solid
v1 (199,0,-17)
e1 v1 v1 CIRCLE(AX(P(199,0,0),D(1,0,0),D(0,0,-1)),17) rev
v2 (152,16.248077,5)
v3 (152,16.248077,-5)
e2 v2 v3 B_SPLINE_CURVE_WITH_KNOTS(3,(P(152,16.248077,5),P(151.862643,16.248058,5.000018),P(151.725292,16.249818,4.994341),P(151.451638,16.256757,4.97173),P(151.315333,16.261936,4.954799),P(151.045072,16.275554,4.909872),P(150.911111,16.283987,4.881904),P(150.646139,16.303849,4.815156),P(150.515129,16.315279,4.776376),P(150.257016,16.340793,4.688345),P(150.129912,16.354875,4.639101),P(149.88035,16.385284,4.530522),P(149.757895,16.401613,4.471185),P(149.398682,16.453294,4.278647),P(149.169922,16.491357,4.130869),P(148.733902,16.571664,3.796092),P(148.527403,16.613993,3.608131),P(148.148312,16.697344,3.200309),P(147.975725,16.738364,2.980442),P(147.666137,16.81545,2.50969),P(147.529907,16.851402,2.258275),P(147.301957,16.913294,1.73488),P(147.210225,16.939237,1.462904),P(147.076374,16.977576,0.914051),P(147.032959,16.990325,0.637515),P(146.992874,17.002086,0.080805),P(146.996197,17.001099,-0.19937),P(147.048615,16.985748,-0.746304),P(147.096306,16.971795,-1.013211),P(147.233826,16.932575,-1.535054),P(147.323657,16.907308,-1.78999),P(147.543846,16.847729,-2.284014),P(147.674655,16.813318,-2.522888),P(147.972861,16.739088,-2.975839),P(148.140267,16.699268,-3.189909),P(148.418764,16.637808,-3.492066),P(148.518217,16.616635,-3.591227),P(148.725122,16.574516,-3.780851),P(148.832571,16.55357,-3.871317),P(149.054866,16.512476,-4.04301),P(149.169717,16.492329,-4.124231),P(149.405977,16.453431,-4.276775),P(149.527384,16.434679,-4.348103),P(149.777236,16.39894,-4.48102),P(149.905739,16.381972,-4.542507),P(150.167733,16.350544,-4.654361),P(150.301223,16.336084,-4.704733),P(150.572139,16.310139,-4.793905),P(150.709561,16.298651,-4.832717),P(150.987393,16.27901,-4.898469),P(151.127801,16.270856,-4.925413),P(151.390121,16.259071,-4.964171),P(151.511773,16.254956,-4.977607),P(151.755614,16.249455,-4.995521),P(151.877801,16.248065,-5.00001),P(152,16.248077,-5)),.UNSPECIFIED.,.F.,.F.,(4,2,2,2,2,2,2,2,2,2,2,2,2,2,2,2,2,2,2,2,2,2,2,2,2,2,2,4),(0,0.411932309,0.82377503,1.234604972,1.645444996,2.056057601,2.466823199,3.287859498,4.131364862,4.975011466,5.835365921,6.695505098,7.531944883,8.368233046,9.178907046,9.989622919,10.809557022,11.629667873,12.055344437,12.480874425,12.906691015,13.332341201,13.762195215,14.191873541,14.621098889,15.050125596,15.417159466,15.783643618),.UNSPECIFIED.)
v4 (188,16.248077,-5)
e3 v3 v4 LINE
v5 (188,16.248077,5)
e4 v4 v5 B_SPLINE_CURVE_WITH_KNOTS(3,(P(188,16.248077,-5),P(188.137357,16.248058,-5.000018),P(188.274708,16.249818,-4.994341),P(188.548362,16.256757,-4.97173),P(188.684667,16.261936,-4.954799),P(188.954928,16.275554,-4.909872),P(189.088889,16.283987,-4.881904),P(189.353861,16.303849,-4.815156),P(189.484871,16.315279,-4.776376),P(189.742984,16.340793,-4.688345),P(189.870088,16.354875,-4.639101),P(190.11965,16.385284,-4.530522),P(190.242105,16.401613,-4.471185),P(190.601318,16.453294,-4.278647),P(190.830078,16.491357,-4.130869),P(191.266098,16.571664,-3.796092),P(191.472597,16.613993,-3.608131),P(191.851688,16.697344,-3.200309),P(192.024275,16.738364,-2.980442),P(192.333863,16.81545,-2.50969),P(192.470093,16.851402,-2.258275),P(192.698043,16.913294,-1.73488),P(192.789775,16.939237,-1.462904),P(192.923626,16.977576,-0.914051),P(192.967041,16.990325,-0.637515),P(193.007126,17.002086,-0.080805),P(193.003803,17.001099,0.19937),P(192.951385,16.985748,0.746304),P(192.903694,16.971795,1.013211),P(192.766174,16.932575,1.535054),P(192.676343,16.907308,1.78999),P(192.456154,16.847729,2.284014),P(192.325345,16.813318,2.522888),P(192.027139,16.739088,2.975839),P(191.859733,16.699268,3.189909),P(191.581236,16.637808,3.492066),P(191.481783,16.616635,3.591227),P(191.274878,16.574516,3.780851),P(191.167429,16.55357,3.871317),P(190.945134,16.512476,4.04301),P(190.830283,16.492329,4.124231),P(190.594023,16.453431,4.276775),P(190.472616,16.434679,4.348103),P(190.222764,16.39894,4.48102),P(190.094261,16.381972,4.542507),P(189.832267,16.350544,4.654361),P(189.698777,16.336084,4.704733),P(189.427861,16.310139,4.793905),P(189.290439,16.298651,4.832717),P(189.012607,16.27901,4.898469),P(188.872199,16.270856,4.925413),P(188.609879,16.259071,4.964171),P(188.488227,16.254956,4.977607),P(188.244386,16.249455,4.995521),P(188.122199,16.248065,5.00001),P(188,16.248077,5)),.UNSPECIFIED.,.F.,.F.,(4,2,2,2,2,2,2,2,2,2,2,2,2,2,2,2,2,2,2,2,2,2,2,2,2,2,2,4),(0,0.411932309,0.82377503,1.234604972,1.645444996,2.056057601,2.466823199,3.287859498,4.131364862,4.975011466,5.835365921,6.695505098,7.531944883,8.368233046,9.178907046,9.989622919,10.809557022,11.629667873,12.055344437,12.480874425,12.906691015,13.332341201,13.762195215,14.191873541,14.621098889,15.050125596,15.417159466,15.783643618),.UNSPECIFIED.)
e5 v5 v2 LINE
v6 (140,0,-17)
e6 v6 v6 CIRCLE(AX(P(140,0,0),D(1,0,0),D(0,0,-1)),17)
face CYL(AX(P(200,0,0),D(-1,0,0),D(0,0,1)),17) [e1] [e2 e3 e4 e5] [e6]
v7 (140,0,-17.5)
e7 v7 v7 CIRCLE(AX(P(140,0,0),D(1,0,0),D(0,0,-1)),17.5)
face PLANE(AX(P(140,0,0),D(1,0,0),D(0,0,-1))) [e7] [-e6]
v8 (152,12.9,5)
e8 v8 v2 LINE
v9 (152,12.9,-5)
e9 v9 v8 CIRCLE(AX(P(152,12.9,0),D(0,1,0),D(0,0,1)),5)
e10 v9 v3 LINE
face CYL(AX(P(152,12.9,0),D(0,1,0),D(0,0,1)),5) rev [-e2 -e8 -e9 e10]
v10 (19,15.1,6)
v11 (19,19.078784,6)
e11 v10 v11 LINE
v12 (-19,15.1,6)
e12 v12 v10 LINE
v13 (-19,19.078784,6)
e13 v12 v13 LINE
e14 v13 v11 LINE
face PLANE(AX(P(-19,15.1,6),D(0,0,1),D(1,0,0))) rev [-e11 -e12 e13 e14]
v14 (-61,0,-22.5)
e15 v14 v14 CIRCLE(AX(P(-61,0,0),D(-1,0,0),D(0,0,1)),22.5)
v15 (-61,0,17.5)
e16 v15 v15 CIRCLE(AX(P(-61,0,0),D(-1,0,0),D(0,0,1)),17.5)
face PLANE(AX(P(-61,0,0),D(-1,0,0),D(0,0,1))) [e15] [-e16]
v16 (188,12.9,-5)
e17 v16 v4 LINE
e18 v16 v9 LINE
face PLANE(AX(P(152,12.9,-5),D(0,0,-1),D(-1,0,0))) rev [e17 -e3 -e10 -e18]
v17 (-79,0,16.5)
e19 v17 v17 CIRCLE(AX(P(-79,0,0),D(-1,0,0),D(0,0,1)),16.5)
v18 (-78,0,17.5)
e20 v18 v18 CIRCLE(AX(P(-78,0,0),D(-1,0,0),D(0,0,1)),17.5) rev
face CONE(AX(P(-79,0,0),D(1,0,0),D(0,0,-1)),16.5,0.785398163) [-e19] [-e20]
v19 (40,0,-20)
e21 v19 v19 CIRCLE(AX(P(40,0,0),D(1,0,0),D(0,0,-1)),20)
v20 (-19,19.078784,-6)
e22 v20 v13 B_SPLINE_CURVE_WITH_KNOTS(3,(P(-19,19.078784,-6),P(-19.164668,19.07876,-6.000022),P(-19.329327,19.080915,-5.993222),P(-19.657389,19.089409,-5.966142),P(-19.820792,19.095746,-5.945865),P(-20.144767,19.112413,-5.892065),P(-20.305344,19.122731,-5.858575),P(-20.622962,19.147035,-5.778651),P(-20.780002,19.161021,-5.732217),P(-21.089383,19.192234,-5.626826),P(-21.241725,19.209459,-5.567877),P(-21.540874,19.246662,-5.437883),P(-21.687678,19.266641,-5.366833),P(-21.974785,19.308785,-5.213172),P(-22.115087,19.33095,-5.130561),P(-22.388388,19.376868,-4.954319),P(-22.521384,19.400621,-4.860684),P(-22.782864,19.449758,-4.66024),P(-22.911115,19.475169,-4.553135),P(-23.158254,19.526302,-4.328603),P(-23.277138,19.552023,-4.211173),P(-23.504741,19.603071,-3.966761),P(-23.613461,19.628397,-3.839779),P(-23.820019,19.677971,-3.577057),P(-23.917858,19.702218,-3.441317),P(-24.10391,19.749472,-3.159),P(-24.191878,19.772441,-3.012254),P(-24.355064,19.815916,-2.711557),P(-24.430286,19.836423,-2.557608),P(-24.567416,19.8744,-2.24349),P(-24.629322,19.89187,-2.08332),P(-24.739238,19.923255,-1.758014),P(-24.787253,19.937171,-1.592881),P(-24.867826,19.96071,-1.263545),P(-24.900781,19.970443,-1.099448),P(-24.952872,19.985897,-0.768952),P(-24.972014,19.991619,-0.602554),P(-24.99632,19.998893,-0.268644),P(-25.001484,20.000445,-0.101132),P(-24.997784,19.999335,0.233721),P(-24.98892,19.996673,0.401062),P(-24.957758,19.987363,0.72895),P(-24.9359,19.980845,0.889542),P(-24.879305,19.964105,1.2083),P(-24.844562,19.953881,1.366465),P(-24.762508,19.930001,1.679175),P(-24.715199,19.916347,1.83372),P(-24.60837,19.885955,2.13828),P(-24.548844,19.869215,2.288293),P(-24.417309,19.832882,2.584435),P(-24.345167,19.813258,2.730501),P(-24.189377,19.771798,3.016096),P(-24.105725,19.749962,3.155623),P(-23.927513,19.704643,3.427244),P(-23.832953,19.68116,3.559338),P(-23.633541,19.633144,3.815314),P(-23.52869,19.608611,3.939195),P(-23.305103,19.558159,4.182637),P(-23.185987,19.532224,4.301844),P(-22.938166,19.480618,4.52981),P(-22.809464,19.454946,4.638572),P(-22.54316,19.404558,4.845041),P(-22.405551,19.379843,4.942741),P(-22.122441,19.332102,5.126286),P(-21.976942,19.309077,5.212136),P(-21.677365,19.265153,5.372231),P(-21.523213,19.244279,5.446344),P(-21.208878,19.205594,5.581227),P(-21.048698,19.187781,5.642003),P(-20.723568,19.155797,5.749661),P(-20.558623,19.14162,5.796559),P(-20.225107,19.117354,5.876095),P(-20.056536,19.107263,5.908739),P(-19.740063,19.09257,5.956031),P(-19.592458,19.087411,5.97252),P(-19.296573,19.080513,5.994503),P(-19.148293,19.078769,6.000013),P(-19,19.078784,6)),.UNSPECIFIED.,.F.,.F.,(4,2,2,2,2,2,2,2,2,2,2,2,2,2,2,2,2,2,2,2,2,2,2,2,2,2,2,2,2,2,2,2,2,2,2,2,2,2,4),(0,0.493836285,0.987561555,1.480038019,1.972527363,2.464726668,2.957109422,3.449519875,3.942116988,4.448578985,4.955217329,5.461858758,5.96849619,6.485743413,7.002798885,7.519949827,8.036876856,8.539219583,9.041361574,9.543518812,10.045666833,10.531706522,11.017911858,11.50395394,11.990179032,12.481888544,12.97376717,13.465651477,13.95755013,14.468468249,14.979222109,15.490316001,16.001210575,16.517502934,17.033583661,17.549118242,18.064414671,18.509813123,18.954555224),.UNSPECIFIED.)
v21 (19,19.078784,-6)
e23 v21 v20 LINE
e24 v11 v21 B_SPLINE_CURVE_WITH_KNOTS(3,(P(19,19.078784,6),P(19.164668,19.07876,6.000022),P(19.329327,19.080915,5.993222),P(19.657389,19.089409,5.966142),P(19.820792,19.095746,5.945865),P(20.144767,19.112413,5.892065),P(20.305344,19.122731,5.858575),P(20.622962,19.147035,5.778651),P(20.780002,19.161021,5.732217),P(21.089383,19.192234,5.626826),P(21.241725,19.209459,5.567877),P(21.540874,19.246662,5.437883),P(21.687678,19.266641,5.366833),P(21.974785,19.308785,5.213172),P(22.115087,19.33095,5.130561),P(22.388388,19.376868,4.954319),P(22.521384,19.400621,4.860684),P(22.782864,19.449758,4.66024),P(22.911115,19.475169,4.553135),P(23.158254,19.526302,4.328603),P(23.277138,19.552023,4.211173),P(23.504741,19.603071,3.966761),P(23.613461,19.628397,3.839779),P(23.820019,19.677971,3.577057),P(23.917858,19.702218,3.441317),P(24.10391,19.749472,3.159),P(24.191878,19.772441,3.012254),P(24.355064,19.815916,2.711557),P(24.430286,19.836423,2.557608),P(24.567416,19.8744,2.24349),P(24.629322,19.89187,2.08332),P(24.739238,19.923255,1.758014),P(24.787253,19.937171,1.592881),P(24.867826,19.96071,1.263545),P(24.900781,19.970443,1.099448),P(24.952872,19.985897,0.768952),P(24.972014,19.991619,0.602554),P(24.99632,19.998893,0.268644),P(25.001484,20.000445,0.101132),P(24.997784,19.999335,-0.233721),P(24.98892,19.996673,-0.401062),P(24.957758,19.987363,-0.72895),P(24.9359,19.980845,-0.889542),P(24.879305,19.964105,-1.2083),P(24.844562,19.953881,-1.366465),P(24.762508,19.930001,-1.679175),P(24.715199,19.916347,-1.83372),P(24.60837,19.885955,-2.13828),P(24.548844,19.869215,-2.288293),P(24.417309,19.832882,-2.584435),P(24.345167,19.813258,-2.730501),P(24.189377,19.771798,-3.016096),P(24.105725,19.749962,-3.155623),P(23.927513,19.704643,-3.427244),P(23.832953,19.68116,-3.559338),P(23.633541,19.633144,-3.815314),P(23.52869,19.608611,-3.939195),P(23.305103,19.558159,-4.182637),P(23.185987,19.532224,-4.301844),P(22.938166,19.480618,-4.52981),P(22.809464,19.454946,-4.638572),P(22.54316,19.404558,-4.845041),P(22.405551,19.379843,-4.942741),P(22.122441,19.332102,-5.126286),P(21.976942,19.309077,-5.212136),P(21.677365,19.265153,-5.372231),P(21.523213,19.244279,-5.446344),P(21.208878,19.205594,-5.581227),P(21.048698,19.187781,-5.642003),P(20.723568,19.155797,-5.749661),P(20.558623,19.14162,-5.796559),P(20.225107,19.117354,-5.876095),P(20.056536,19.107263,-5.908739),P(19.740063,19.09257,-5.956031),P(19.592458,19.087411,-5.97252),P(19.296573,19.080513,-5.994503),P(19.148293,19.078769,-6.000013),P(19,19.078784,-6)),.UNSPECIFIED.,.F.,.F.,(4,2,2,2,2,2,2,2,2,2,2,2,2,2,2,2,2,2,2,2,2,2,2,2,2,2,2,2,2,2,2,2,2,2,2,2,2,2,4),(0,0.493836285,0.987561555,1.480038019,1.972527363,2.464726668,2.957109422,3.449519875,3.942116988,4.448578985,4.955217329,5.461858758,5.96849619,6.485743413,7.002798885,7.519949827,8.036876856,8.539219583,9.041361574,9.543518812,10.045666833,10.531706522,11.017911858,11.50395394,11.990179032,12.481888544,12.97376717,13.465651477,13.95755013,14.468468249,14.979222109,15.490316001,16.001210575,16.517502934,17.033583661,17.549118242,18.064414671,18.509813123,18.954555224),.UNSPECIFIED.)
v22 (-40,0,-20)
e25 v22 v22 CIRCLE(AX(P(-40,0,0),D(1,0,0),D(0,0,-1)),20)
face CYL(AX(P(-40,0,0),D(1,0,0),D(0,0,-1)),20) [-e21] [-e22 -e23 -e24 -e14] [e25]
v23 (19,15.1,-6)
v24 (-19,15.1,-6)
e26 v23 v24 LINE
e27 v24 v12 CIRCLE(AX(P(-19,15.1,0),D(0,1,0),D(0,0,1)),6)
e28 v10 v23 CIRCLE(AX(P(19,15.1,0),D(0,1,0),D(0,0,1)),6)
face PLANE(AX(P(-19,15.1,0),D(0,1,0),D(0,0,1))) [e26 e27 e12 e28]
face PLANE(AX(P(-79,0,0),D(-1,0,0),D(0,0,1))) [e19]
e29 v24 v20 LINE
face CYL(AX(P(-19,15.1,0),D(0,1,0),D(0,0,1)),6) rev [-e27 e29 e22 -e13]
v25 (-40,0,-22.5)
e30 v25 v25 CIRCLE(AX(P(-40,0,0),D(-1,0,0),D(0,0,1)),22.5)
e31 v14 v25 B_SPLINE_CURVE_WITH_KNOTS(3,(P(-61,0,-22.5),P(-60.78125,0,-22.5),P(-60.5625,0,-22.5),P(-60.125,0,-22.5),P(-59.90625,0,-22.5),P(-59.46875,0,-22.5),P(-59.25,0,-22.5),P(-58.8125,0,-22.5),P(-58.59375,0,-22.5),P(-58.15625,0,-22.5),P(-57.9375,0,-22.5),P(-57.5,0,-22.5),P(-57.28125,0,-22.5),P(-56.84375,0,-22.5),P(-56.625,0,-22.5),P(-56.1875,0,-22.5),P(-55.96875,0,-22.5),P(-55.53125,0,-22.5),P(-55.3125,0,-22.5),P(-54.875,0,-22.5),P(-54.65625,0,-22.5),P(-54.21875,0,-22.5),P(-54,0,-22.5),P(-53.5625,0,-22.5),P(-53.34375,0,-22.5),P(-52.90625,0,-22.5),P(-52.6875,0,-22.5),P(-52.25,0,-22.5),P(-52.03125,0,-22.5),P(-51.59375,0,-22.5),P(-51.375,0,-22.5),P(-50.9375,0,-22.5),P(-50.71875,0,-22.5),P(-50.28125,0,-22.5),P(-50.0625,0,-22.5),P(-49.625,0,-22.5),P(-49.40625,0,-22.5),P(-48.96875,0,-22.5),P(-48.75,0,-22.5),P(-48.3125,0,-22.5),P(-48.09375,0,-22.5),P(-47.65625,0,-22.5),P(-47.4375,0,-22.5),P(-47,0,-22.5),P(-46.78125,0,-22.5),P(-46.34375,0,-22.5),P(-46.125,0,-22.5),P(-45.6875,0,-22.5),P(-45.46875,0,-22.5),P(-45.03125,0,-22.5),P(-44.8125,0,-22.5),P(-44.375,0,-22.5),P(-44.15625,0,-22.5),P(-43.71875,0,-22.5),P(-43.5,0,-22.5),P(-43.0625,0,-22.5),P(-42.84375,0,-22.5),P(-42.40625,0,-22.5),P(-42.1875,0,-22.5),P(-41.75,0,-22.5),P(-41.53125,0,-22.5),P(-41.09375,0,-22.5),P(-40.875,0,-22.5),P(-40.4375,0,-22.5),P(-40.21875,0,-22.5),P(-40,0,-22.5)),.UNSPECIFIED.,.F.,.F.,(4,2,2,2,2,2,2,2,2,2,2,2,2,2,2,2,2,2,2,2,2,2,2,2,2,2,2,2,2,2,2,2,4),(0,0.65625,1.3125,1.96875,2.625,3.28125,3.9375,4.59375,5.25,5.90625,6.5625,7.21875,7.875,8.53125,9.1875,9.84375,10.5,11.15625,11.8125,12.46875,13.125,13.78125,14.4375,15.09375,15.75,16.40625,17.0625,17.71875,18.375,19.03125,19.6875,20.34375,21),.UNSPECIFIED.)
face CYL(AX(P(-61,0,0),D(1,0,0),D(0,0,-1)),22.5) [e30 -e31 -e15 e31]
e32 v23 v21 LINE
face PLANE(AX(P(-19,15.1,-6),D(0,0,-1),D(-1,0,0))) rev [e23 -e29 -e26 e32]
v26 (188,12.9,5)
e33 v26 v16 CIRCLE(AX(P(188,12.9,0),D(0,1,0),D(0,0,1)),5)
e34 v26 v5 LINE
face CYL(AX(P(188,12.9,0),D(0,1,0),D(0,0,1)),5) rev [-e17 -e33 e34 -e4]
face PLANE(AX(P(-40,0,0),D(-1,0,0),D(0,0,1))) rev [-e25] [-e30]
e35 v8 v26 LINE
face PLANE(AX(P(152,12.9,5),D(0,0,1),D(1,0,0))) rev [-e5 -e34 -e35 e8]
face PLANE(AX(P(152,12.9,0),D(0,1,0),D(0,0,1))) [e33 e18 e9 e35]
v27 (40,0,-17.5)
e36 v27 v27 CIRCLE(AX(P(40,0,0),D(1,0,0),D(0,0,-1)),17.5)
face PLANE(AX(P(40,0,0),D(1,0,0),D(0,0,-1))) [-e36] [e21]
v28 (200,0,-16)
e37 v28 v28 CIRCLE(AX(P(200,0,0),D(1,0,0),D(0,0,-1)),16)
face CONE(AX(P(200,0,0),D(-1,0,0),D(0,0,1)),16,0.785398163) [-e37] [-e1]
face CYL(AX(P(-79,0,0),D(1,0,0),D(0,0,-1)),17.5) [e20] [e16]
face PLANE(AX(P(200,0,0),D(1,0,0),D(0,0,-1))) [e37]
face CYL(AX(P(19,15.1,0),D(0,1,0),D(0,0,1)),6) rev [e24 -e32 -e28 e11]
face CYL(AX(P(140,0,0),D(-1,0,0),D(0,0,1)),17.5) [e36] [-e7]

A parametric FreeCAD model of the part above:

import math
import FreeCAD as App
import Part
import Sketcher

V = App.Vector


def edges_at(feature, points):
    """Names of the edges that pass closest to the given points."""
    edges = feature.Shape.Edges
    near = lambda p: min(range(len(edges)), key=lambda i: edges[i].distToShape(Part.Vertex(*p))[0])
    return sorted({f"Edge{near(p) + 1}" for p in points})

doc = App.newDocument("Part")
params = doc.addObject("Spreadsheet::Sheet", "Params")
for row, (alias, value) in enumerate([
    ("sketch1_diameter", "40 mm"),
    ("pad1_length", "40 mm"),
    ("pad1_length2", "40 mm"),
    ("sketch2_radius", "6 mm"),
    ("sketch2_width", "38 mm"),
    ("pocket1_length", "4.9 mm"),
    ("sketch3_diameter", "45 mm"),
    ("pad2_length", "21 mm"),
    ("sketch4_diameter", "35 mm"),
    ("pad3_length", "18 mm"),
    ("chamfer_size", "1 mm"),
    ("sketch5_diameter", "35 mm"),
    ("pad4_length", "100 mm"),
    ("sketch6_diameter", "34 mm"),
    ("pad5_length", "60 mm"),
    ("sketch7_radius", "5 mm"),
    ("sketch7_width", "36 mm"),
    ("pocket2_length", "4.1 mm"),
    ("chamfer2_size", "1 mm"),
], start=1):
    params.set(f"A{row}", alias)
    params.set(f"B{row}", "=" + value)
    params.setAlias(f"B{row}", alias)

body = doc.addObject("PartDesign::Body", "Body")

# Sketch on YZ plane
sketch1 = doc.addObject("Sketcher::SketchObject", "Sketch")
body.addObject(sketch1)
sketch1.AttachmentSupport = (doc.YZ_Plane, [""])
sketch1.MapMode = "FlatFace"
sketch1.addGeometry(Part.Circle(V(0, 0, 0), V(0, 0, 1), 20), False)
sketch1.addConstraint([
    Sketcher.Constraint("Coincident", 0, 3, -1, 1),
    Sketcher.Constraint("Diameter", 0, 40.0),
])
sketch1.setExpression("Constraints[1]", "Params.sketch1_diameter")
pad1 = doc.addObject("PartDesign::Pad", "Pad")
body.addObject(pad1)
pad1.Profile = sketch1
pad1.Type = "TwoLengths"
pad1.setExpression("Length", "Params.pad1_length")
pad1.setExpression("Length2", "Params.pad1_length2")

# Sketch on XZ plane
sketch2 = doc.addObject("Sketcher::SketchObject", "Sketch001")
body.addObject(sketch2)
sketch2.AttachmentSupport = (doc.XZ_Plane, [""])
sketch2.MapMode = "FlatFace"
sketch2.AttachmentOffset = App.Placement(V(0, 0, -20), App.Rotation())
sketch2.addGeometry([
    Part.LineSegment(V(19, -6, 0), V(-19, -6, 0)),
    Part.ArcOfCircle(Part.Circle(V(-19, 0, 0), V(0, 0, 1), 6), math.radians(90), math.radians(270)),
    Part.LineSegment(V(-19, 6, 0), V(19, 6, 0)),
    Part.ArcOfCircle(Part.Circle(V(19, 0, 0), V(0, 0, 1), 6), math.radians(-90), math.radians(90)),
], False)
sketch2.addConstraint([
    Sketcher.Constraint("Tangent", 0, 2, 1, 2),
    Sketcher.Constraint("Tangent", 1, 1, 2, 1),
    Sketcher.Constraint("Tangent", 2, 2, 3, 2),
    Sketcher.Constraint("Tangent", 3, 1, 0, 1),
    Sketcher.Constraint("Horizontal", 0),
    Sketcher.Constraint("Horizontal", 2),
    Sketcher.Constraint("Symmetric", 1, 3, 3, 3, -1, 1),
    Sketcher.Constraint("Radius", 1, 6.0),
    Sketcher.Constraint("DistanceX", 0, 2, 0, 1, 38.0),
])
sketch2.setExpression("Constraints[7]", "Params.sketch2_radius")
sketch2.setExpression("Constraints[8]", "Params.sketch2_width")
pocket1 = doc.addObject("PartDesign::Pocket", "Pocket")
body.addObject(pocket1)
pocket1.Profile = sketch2
pocket1.setExpression("Length", "Params.pocket1_length")
pocket1.Reversed = True

# Sketch on YZ plane
sketch3 = doc.addObject("Sketcher::SketchObject", "Sketch002")
body.addObject(sketch3)
sketch3.AttachmentSupport = (doc.YZ_Plane, [""])
sketch3.MapMode = "FlatFace"
sketch3.AttachmentOffset = App.Placement(V(0, 0, -40), App.Rotation())
sketch3.addGeometry(Part.Circle(V(0, 0, 0), V(0, 0, 1), 22.5), False)
sketch3.addConstraint([
    Sketcher.Constraint("Coincident", 0, 3, -1, 1),
    Sketcher.Constraint("Diameter", 0, 45.0),
])
sketch3.setExpression("Constraints[1]", "Params.sketch3_diameter")
pad2 = doc.addObject("PartDesign::Pad", "Pad001")
body.addObject(pad2)
pad2.Profile = sketch3
pad2.setExpression("Length", "Params.pad2_length")
pad2.Reversed = True

# Sketch on YZ plane
sketch4 = doc.addObject("Sketcher::SketchObject", "Sketch003")
body.addObject(sketch4)
sketch4.AttachmentSupport = (doc.YZ_Plane, [""])
sketch4.MapMode = "FlatFace"
sketch4.AttachmentOffset = App.Placement(V(0, 0, -61), App.Rotation())
sketch4.addGeometry(Part.Circle(V(0, 0, 0), V(0, 0, 1), 17.5), False)
sketch4.addConstraint([
    Sketcher.Constraint("Coincident", 0, 3, -1, 1),
    Sketcher.Constraint("Diameter", 0, 35.0),
])
sketch4.setExpression("Constraints[1]", "Params.sketch4_diameter")
pad3 = doc.addObject("PartDesign::Pad", "Pad002")
body.addObject(pad3)
pad3.Profile = sketch4
pad3.setExpression("Length", "Params.pad3_length")
pad3.Reversed = True
doc.recompute()

chamfer = doc.addObject("PartDesign::Chamfer", "Chamfer")
body.addObject(chamfer)
chamfer.Base = (pad3, edges_at(pad3, [(-79, 0, -17.5)]))
chamfer.setExpression("Size", "Params.chamfer_size")

# Sketch on YZ plane
sketch5 = doc.addObject("Sketcher::SketchObject", "Sketch004")
body.addObject(sketch5)
sketch5.AttachmentSupport = (doc.YZ_Plane, [""])
sketch5.MapMode = "FlatFace"
sketch5.AttachmentOffset = App.Placement(V(0, 0, 140), App.Rotation())
sketch5.addGeometry(Part.Circle(V(0, 0, 0), V(0, 0, 1), 17.5), False)
sketch5.addConstraint([
    Sketcher.Constraint("Coincident", 0, 3, -1, 1),
    Sketcher.Constraint("Diameter", 0, 35.0),
])
sketch5.setExpression("Constraints[1]", "Params.sketch5_diameter")
pad4 = doc.addObject("PartDesign::Pad", "Pad003")
body.addObject(pad4)
pad4.Profile = sketch5
pad4.setExpression("Length", "Params.pad4_length")
pad4.Reversed = True

# Sketch on YZ plane
sketch6 = doc.addObject("Sketcher::SketchObject", "Sketch005")
body.addObject(sketch6)
sketch6.AttachmentSupport = (doc.YZ_Plane, [""])
sketch6.MapMode = "FlatFace"
sketch6.AttachmentOffset = App.Placement(V(0, 0, 140), App.Rotation())
sketch6.addGeometry(Part.Circle(V(0, 0, 0), V(0, 0, 1), 17), False)
sketch6.addConstraint([
    Sketcher.Constraint("Coincident", 0, 3, -1, 1),
    Sketcher.Constraint("Diameter", 0, 34.0),
])
sketch6.setExpression("Constraints[1]", "Params.sketch6_diameter")
pad5 = doc.addObject("PartDesign::Pad", "Pad004")
body.addObject(pad5)
pad5.Profile = sketch6
pad5.setExpression("Length", "Params.pad5_length")

# Sketch on XZ plane
sketch7 = doc.addObject("Sketcher::SketchObject", "Sketch006")
body.addObject(sketch7)
sketch7.AttachmentSupport = (doc.XZ_Plane, [""])
sketch7.MapMode = "FlatFace"
sketch7.AttachmentOffset = App.Placement(V(0, 0, -17), App.Rotation())
sketch7.addGeometry([
    Part.LineSegment(V(188, -5, 0), V(152, -5, 0)),
    Part.ArcOfCircle(Part.Circle(V(152, 0, 0), V(0, 0, 1), 5), math.radians(90), math.radians(270)),
    Part.LineSegment(V(152, 5, 0), V(188, 5, 0)),
    Part.ArcOfCircle(Part.Circle(V(188, 0, 0), V(0, 0, 1), 5), math.radians(-90), math.radians(90)),
], False)
sketch7.addConstraint([
    Sketcher.Constraint("Tangent", 0, 2, 1, 2),
    Sketcher.Constraint("Tangent", 1, 1, 2, 1),
    Sketcher.Constraint("Tangent", 2, 2, 3, 2),
    Sketcher.Constraint("Tangent", 3, 1, 0, 1),
    Sketcher.Constraint("Horizontal", 0),
    Sketcher.Constraint("Horizontal", 2),
    Sketcher.Constraint("PointOnObject", 1, 3, -1),
    Sketcher.Constraint("Radius", 1, 5.0),
    Sketcher.Constraint("DistanceX", 0, 2, 0, 1, 36.0),
    Sketcher.Constraint("DistanceX", -1, 1, 1, 3, 152.0),
])
sketch7.setExpression("Constraints[7]", "Params.sketch7_radius")
sketch7.setExpression("Constraints[8]", "Params.sketch7_width")
pocket2 = doc.addObject("PartDesign::Pocket", "Pocket001")
body.addObject(pocket2)
pocket2.Profile = sketch7
pocket2.setExpression("Length", "Params.pocket2_length")
pocket2.Reversed = True
doc.recompute()

chamfer2 = doc.addObject("PartDesign::Chamfer", "Chamfer001")
body.addObject(chamfer2)
chamfer2.Base = (pocket2, edges_at(pocket2, [(200, 0, 17)]))
chamfer2.setExpression("Size", "Params.chamfer2_size")

doc.recompute()
